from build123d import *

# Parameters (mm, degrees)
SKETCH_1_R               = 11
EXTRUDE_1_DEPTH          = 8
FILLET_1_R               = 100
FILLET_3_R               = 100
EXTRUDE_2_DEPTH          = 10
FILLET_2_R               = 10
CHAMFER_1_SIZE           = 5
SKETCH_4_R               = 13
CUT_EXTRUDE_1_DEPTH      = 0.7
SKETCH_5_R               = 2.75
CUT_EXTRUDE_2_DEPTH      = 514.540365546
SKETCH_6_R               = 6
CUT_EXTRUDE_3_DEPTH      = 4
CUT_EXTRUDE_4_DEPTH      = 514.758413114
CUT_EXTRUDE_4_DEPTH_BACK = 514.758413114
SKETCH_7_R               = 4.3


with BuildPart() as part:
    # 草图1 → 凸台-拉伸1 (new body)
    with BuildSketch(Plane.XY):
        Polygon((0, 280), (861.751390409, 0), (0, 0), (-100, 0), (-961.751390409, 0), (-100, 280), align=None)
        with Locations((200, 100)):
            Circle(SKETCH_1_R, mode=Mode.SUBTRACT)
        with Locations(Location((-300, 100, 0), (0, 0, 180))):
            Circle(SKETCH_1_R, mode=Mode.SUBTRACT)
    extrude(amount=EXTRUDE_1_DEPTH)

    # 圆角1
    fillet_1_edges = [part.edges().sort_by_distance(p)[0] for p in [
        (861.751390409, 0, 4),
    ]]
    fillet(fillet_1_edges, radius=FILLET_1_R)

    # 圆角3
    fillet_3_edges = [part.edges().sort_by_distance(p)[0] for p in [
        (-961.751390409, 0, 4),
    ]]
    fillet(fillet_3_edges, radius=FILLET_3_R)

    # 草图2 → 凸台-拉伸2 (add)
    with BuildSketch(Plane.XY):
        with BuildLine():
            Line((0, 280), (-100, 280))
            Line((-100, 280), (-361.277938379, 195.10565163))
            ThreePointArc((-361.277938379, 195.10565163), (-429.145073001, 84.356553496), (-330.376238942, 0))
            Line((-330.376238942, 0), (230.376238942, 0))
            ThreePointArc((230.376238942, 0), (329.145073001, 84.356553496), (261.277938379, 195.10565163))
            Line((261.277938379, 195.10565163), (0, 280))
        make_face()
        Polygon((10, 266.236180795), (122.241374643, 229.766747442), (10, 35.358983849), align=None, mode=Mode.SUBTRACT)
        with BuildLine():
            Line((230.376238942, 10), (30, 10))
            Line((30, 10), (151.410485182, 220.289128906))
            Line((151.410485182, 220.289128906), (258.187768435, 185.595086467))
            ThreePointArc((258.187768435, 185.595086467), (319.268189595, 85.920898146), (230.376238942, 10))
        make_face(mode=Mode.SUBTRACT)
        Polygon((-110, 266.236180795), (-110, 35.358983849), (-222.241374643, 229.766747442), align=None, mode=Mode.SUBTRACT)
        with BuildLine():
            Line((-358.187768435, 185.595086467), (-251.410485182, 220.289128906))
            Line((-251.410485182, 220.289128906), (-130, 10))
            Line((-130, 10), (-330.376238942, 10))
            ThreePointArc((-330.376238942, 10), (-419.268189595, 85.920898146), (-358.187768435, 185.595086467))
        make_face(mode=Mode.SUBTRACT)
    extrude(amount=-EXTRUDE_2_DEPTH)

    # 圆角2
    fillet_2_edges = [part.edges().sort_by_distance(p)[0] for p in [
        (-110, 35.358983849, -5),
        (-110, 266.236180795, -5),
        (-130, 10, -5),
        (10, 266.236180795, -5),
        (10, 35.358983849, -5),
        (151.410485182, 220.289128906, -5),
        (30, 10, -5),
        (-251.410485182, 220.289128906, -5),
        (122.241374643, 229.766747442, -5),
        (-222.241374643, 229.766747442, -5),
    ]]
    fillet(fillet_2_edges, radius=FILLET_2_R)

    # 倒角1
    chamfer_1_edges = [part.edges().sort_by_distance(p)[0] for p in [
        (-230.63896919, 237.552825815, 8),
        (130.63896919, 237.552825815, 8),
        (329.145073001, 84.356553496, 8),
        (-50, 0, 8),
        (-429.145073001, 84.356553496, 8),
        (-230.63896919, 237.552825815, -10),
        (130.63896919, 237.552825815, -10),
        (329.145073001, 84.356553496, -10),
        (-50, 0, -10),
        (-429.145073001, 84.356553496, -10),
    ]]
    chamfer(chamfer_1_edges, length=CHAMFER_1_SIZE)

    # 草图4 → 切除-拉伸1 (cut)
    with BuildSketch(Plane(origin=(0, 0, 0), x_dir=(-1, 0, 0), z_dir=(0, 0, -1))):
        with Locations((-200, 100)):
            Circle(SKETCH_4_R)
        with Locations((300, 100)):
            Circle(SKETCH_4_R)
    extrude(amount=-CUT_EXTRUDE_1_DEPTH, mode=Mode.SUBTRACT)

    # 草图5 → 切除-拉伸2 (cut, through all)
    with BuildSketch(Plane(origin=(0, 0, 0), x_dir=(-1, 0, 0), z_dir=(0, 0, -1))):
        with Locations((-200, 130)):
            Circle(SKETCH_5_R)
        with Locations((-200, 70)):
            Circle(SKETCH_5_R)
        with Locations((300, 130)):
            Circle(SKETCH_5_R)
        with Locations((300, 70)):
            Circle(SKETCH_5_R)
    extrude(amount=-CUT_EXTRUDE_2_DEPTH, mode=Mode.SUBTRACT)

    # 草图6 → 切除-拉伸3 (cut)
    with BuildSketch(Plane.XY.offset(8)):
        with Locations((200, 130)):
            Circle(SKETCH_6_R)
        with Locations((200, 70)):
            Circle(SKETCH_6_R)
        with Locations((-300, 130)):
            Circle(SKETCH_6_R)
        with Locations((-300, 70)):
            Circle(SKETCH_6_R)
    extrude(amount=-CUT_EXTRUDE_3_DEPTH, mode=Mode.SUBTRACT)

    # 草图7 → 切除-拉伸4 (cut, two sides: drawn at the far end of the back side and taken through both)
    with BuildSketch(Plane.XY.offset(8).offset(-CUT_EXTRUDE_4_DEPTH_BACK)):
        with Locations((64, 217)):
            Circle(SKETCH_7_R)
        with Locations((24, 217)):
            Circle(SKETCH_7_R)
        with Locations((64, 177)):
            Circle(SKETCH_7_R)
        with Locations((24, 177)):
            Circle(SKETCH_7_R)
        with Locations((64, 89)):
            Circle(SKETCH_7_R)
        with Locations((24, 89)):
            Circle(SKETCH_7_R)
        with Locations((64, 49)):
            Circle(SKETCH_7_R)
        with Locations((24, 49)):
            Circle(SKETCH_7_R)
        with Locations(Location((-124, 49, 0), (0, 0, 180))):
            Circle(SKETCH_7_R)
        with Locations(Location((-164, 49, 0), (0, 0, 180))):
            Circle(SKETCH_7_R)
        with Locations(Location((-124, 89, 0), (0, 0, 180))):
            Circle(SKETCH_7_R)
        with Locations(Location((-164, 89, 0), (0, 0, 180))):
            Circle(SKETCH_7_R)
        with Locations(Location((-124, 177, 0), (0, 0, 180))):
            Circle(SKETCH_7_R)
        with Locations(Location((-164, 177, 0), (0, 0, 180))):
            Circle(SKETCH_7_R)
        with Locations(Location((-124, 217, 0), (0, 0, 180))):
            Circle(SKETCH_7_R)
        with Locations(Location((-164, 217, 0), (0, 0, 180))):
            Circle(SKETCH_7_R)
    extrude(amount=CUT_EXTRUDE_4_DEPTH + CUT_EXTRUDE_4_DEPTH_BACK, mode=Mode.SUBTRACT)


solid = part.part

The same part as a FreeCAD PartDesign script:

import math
import FreeCAD as App
import Part
import Sketcher
from FreeCAD import Vector
Q = App.Units.Quantity


def edges_at(feature, points):
    """Names of the edges that pass closest to the given points."""
    edges = feature.Shape.Edges
    near = lambda p: min(range(len(edges)), key=lambda i: edges[i].distToShape(Part.Vertex(*p))[0])
    return sorted({f"Edge{near(p) + 1}" for p in points})


def add_polygon(sketch, points):
    """Adds a closed chain of lines whose ends are joined by coincident constraints."""
    first, n = sketch.GeometryCount, len(points)
    for a, b in zip(points, points[1:] + points[:1]):
        sketch.addGeometry(Part.LineSegment(App.Vector(*a, 0), App.Vector(*b, 0)), False)
    for i in range(n):
        sketch.addConstraint(Sketcher.Constraint("Coincident", first + i, 2, first + (i + 1) % n, 1))

doc = App.newDocument("Part")
body = doc.addObject("PartDesign::Body", "Body")

sketch1 = doc.addObject("Sketcher::SketchObject", "Sketch")
body.addObject(sketch1)
sketch1.AttachmentSupport = (doc.XY_Plane, [""])
sketch1.MapMode = "FlatFace"
add_polygon(sketch1, [(862, 0), (0, 280), (-100, 280), (-962, 0)])
sketch1.addGeometry(Part.Circle(Vector(200, 100, 0), Vector(0, 0, 1), 11), False)
sketch1.addGeometry(Part.Circle(Vector(-300, 100, 0), Vector(0, 0, 1), 11), False)
sketch1.addConstraint(Sketcher.Constraint("Horizontal", 1))
sketch1.addConstraint(Sketcher.Constraint("Horizontal", 3))
sketch1.addConstraint(Sketcher.Constraint("Equal", 4, 5))
sketch1.addConstraint(Sketcher.Constraint("PointOnObject", 0, 2, -2))
sketch1.addConstraint(Sketcher.Constraint("PointOnObject", 2, 2, -1))
sketch1.addConstraint(Sketcher.Constraint("Horizontal", 4, 3, 5, 3))
sketch1.addConstraint(Sketcher.Constraint("Equal", 0, 2))
sketch1.addConstraint(Sketcher.Constraint("Diameter", 4, Q("22 mm")))
sketch1.addConstraint(Sketcher.Constraint("DistanceX", 1, 2, 1, 1, Q("100 mm")))
sketch1.addConstraint(Sketcher.Constraint("Angle", 0, Q("162 deg")))
sketch1.addConstraint(Sketcher.Constraint("DistanceX", -1, 1, 4, 3, Q("200 mm")))
sketch1.addConstraint(Sketcher.Constraint("DistanceY", -1, 1, 4, 3, Q("100 mm")))
sketch1.addConstraint(Sketcher.Constraint("DistanceX", 5, 3, -1, 1, Q("300 mm")))
sketch1.addConstraint(Sketcher.Constraint("DistanceY", -1, 1, 0, 2, Q("280 mm")))
pad1 = doc.addObject("PartDesign::Pad", "Pad")
body.addObject(pad1)
pad1.Profile = sketch1
pad1.Length = 8
doc.recompute()

fillet = doc.addObject("PartDesign::Fillet", "Fillet")
body.addObject(fillet)
fillet.Base = (pad1, edges_at(pad1, [(861.751, 0, 4)]))
fillet.Radius = 100
doc.recompute()

fillet2 = doc.addObject("PartDesign::Fillet", "Fillet001")
body.addObject(fillet2)
fillet2.Base = (fillet, edges_at(fillet, [(-961.751, 0, 4)]))
fillet2.Radius = 100

sketch2 = doc.addObject("Sketcher::SketchObject", "Sketch001")
body.addObject(sketch2)
sketch2.AttachmentSupport = (doc.XY_Plane, [""])
sketch2.MapMode = "FlatFace"
sketch2.addGeometry(Part.LineSegment(Vector(0, 280, 0), Vector(-100, 280, 0)), False)
sketch2.addGeometry(Part.LineSegment(Vector(-100, 280, 0), Vector(-361, 195, 0)), False)
sketch2.addGeometry(Part.ArcOfCircle(Part.Circle(Vector(-330, 100, 0), Vector(0, 0, 1), 100), math.radians(108), math.radians(270)), False)
sketch2.addGeometry(Part.LineSegment(Vector(-330, 0, 0), Vector(230, 0, 0)), False)
sketch2.addGeometry(Part.ArcOfCircle(Part.Circle(Vector(230, 100, 0), Vector(0, 0, 1), 100), math.radians(-90), math.radians(72)), False)
sketch2.addGeometry(Part.LineSegment(Vector(261, 195, 0), Vector(0, 280, 0)), False)
sketch2.addGeometry(Part.ArcOfCircle(Part.Circle(Vector(-330, 100, 0), Vector(0, 0, 1), 90), math.radians(108), math.radians(270)), False)
sketch2.addGeometry(Part.LineSegment(Vector(-358, 186, 0), Vector(-251, 220, 0)), False)
sketch2.addGeometry(Part.LineSegment(Vector(-251, 220, 0), Vector(-130, 10, 0)), False)
sketch2.addGeometry(Part.LineSegment(Vector(-130, 10, 0), Vector(-330, 10, 0)), False)
sketch2.addGeometry(Part.ArcOfCircle(Part.Circle(Vector(230, 100, 0), Vector(0, 0, 1), 90), math.radians(-90), math.radians(72)), False)
sketch2.addGeometry(Part.LineSegment(Vector(230, 10, 0), Vector(30, 10, 0)), False)
sketch2.addGeometry(Part.LineSegment(Vector(30, 10, 0), Vector(151, 220, 0)), False)
sketch2.addGeometry(Part.LineSegment(Vector(151, 220, 0), Vector(258, 186, 0)), False)
add_polygon(sketch2, [(-222, 230), (-110, 266), (-110, 35)])
add_polygon(sketch2, [(10, 35), (10, 266), (122, 230)])
sketch2.addConstraint(Sketcher.Constraint("Coincident", 0, 2, 1, 1))
sketch2.addConstraint(Sketcher.Constraint("Tangent", 1, 2, 2, 1))
sketch2.addConstraint(Sketcher.Constraint("Tangent", 2, 2, 3, 1))
sketch2.addConstraint(Sketcher.Constraint("Tangent", 3, 2, 4, 1))
sketch2.addConstraint(Sketcher.Constraint("Tangent", 4, 2, 5, 1))
sketch2.addConstraint(Sketcher.Constraint("Coincident", 5, 2, 0, 1))
sketch2.addConstraint(Sketcher.Constraint("Tangent", 6, 1, 7, 1))
sketch2.addConstraint(Sketcher.Constraint("Coincident", 7, 2, 8, 1))
sketch2.addConstraint(Sketcher.Constraint("Coincident", 8, 2, 9, 1))
sketch2.addConstraint(Sketcher.Constraint("Tangent", 9, 2, 6, 2))
sketch2.addConstraint(Sketcher.Constraint("Tangent", 10, 1, 11, 1))
sketch2.addConstraint(Sketcher.Constraint("Coincident", 11, 2, 12, 1))
sketch2.addConstraint(Sketcher.Constraint("Coincident", 12, 2, 13, 1))
sketch2.addConstraint(Sketcher.Constraint("Tangent", 13, 2, 10, 2))
sketch2.addConstraint(Sketcher.Constraint("Horizontal", 0))
sketch2.addConstraint(Sketcher.Constraint("Horizontal", 3))
sketch2.addConstraint(Sketcher.Constraint("Horizontal", 9))
sketch2.addConstraint(Sketcher.Constraint("Horizontal", 11))
sketch2.addConstraint(Sketcher.Constraint("Vertical", 15))
sketch2.addConstraint(Sketcher.Constraint("Vertical", 17))
sketch2.addConstraint(Sketcher.Constraint("Coincident", 6, 3, 2, 3))
sketch2.addConstraint(Sketcher.Constraint("Coincident", 10, 3, 4, 3))
sketch2.addConstraint(Sketcher.Constraint("Equal", 2, 4))
sketch2.addConstraint(Sketcher.Constraint("Equal", 6, 10))
sketch2.addConstraint(Sketcher.Constraint("PointOnObject", 2, 2, -1))
sketch2.addConstraint(Sketcher.Constraint("PointOnObject", 5, 2, -2))
sketch2.addConstraint(Sketcher.Constraint("Parallel", 1, 7))
sketch2.addConstraint(Sketcher.Constraint("Parallel", 5, 13))
sketch2.addConstraint(Sketcher.Constraint("Parallel", 7, 14))
sketch2.addConstraint(Sketcher.Constraint("Parallel", 8, 16))
sketch2.addConstraint(Sketcher.Constraint("Parallel", 13, 18))
sketch2.addConstraint(Sketcher.Constraint("Parallel", 12, 19))
sketch2.addConstraint(Sketcher.Constraint("Horizontal", 7, 2, 12, 2))
sketch2.addConstraint(Sketcher.Constraint("Horizontal", 14, 2, 17, 2))
sketch2.addConstraint(Sketcher.Constraint("Horizontal", 16, 2, 18, 2))
sketch2.addConstraint(Sketcher.Constraint("Horizontal", 15, 2, 19, 2))
sketch2.addConstraint(Sketcher.Constraint("Equal", 9, 11))
sketch2.addConstraint(Sketcher.Constraint("Radius", 2, Q("100 mm")))
sketch2.addConstraint(Sketcher.Constraint("Radius", 6, Q("90 mm")))
sketch2.addConstraint(Sketcher.Constraint("DistanceX", 0, 2, 0, 1, Q("100 mm")))
sketch2.addConstraint(Sketcher.Constraint("Angle", 1, Q("-162 deg")))
sketch2.addConstraint(Sketcher.Constraint("Angle", 8, Q("-60 deg")))
sketch2.addConstraint(Sketcher.Constraint("DistanceY", -1, 1, 0, 2, Q("280 mm")))
sketch2.addConstraint(Sketcher.Constraint("DistanceX", 8, 2, -1, 1, Q("130 mm")))
sketch2.addConstraint(Sketcher.Constraint("DistanceX", 14, 2, -1, 1, Q("110 mm")))
sketch2.addConstraint(Sketcher.Constraint("DistanceX", -1, 1, 17, 2, Q("10 mm")))
sketch2.addConstraint(Sketcher.Constraint("Distance", 16, Q("224.482749 mm")))
sketch2.addConstraint(Sketcher.Constraint("DistanceY", -1, 1, 14, 2, Q("266.236181 mm")))
pad2 = doc.addObject("PartDesign::Pad", "Pad001")
body.addObject(pad2)
pad2.Profile = sketch2
pad2.Length = 10
pad2.Reversed = True
doc.recompute()

fillet3 = doc.addObject("PartDesign::Fillet", "Fillet002")
body.addObject(fillet3)
fillet3.Base = (pad2, edges_at(pad2, [
    (-110, 35.359, -5),
    (-110, 266.236, -5),
    (-130, 10, -5),
    (10, 266.236, -5),
    (10, 35.359, -5),
    (151.41, 220.289, -5),
    (30, 10, -5),
    (-251.41, 220.289, -5),
    (122.241, 229.767, -5),
    (-222.241, 229.767, -5),
]))
fillet3.Radius = 10
doc.recompute()

chamfer = doc.addObject("PartDesign::Chamfer", "Chamfer")
body.addObject(chamfer)
chamfer.Base = (fillet3, edges_at(fillet3, [
    (-230.639, 237.553, 8),
    (130.639, 237.553, 8),
    (329.145, 84.357, 8),
    (-50, 0, 8),
    (-429.145, 84.357, 8),
    (-230.639, 237.553, -10),
    (130.639, 237.553, -10),
    (329.145, 84.357, -10),
    (-50, 0, -10),
    (-429.145, 84.357, -10),
]))
chamfer.Size = 5

sketch3 = doc.addObject("Sketcher::SketchObject", "Sketch002")
body.addObject(sketch3)
sketch3.AttachmentSupport = (doc.XY_Plane, [""])
sketch3.MapMode = "FlatFace"
sketch3.addGeometry(Part.Circle(Vector(200, 100, 0), Vector(0, 0, 1), 13), False)
sketch3.addGeometry(Part.Circle(Vector(-300, 100, 0), Vector(0, 0, 1), 13), False)
sketch3.addConstraint(Sketcher.Constraint("Equal", 0, 1))
sketch3.addConstraint(Sketcher.Constraint("Horizontal", 0, 3, 1, 3))
sketch3.addConstraint(Sketcher.Constraint("Diameter", 0, Q("26 mm")))
sketch3.addConstraint(Sketcher.Constraint("DistanceX", -1, 1, 0, 3, Q("200 mm")))
sketch3.addConstraint(Sketcher.Constraint("DistanceY", -1, 1, 0, 3, Q("100 mm")))
sketch3.addConstraint(Sketcher.Constraint("DistanceX", 1, 3, -1, 1, Q("300 mm")))
pocket1 = doc.addObject("PartDesign::Pocket", "Pocket")
body.addObject(pocket1)
pocket1.Profile = sketch3
pocket1.Length = 0.7
pocket1.Reversed = True

sketch4 = doc.addObject("Sketcher::SketchObject", "Sketch003")
body.addObject(sketch4)
sketch4.AttachmentSupport = (doc.XY_Plane, [""])
sketch4.MapMode = "FlatFace"
sketch4.addGeometry(Part.Circle(Vector(200, 130, 0), Vector(0, 0, 1), 2.8), False)
sketch4.addGeometry(Part.Circle(Vector(200, 70, 0), Vector(0, 0, 1), 2.8), False)
sketch4.addGeometry(Part.Circle(Vector(-300, 130, 0), Vector(0, 0, 1), 2.8), False)
sketch4.addGeometry(Part.Circle(Vector(-300, 70, 0), Vector(0, 0, 1), 2.8), False)
sketch4.addConstraint(Sketcher.Constraint("Equal", 0, 1))
sketch4.addConstraint(Sketcher.Constraint("Equal", 1, 2))
sketch4.addConstraint(Sketcher.Constraint("Equal", 2, 3))
sketch4.addConstraint(Sketcher.Constraint("Horizontal", 0, 3, 2, 3))
sketch4.addConstraint(Sketcher.Constraint("Horizontal", 1, 3, 3, 3))
sketch4.addConstraint(Sketcher.Constraint("Vertical", 0, 3, 1, 3))
sketch4.addConstraint(Sketcher.Constraint("Vertical", 2, 3, 3, 3))
sketch4.addConstraint(Sketcher.Constraint("Diameter", 0, Q("5.5 mm")))
sketch4.addConstraint(Sketcher.Constraint("DistanceX", -1, 1, 0, 3, Q("200 mm")))
sketch4.addConstraint(Sketcher.Constraint("DistanceY", -1, 1, 0, 3, Q("130 mm")))
sketch4.addConstraint(Sketcher.Constraint("DistanceY", -1, 1, 1, 3, Q("70 mm")))
sketch4.addConstraint(Sketcher.Constraint("DistanceX", 2, 3, -1, 1, Q("300 mm")))
pocket2 = doc.addObject("PartDesign::Pocket", "Pocket001")
body.addObject(pocket2)
pocket2.Profile = sketch4
pocket2.Type = "ThroughAll"
pocket2.Reversed = True

sketch5 = doc.addObject("Sketcher::SketchObject", "Sketch004")
body.addObject(sketch5)
sketch5.AttachmentSupport = (doc.XY_Plane, [""])
sketch5.MapMode = "FlatFace"
sketch5.AttachmentOffset = App.Placement(Vector(0, 0, 8), App.Rotation())
sketch5.addGeometry(Part.Circle(Vector(200, 130, 0), Vector(0, 0, 1), 6), False)
sketch5.addGeometry(Part.Circle(Vector(200, 70, 0), Vector(0, 0, 1), 6), False)
sketch5.addGeometry(Part.Circle(Vector(-300, 130, 0), Vector(0, 0, 1), 6), False)
sketch5.addGeometry(Part.Circle(Vector(-300, 70, 0), Vector(0, 0, 1), 6), False)
sketch5.addConstraint(Sketcher.Constraint("Equal", 0, 1))
sketch5.addConstraint(Sketcher.Constraint("Equal", 1, 2))
sketch5.addConstraint(Sketcher.Constraint("Equal", 2, 3))
sketch5.addConstraint(Sketcher.Constraint("Horizontal", 0, 3, 2, 3))
sketch5.addConstraint(Sketcher.Constraint("Horizontal", 1, 3, 3, 3))
sketch5.addConstraint(Sketcher.Constraint("Vertical", 0, 3, 1, 3))
sketch5.addConstraint(Sketcher.Constraint("Vertical", 2, 3, 3, 3))
sketch5.addConstraint(Sketcher.Constraint("Diameter", 0, Q("12 mm")))
sketch5.addConstraint(Sketcher.Constraint("DistanceX", -1, 1, 0, 3, Q("200 mm")))
sketch5.addConstraint(Sketcher.Constraint("DistanceY", -1, 1, 0, 3, Q("130 mm")))
sketch5.addConstraint(Sketcher.Constraint("DistanceY", -1, 1, 1, 3, Q("70 mm")))
sketch5.addConstraint(Sketcher.Constraint("DistanceX", 2, 3, -1, 1, Q("300 mm")))
pocket3 = doc.addObject("PartDesign::Pocket", "Pocket002")
body.addObject(pocket3)
pocket3.Profile = sketch5
pocket3.Length = 4

sketch6 = doc.addObject("Sketcher::SketchObject", "Sketch005")
body.addObject(sketch6)
sketch6.AttachmentSupport = (doc.XY_Plane, [""])
sketch6.MapMode = "FlatFace"
sketch6.AttachmentOffset = App.Placement(Vector(0, 0, 8), App.Rotation())
sketch6.addGeometry(Part.Circle(Vector(64, 217, 0), Vector(0, 0, 1), 4.3), False)
sketch6.addGeometry(Part.Circle(Vector(24, 217, 0), Vector(0, 0, 1), 4.3), False)
sketch6.addGeometry(Part.Circle(Vector(64, 177, 0), Vector(0, 0, 1), 4.3), False)
sketch6.addGeometry(Part.Circle(Vector(24, 177, 0), Vector(0, 0, 1), 4.3), False)
sketch6.addGeometry(Part.Circle(Vector(64, 89, 0), Vector(0, 0, 1), 4.3), False)
sketch6.addGeometry(Part.Circle(Vector(24, 89, 0), Vector(0, 0, 1), 4.3), False)
sketch6.addGeometry(Part.Circle(Vector(64, 49, 0), Vector(0, 0, 1), 4.3), False)
sketch6.addGeometry(Part.Circle(Vector(24, 49, 0), Vector(0, 0, 1), 4.3), False)
sketch6.addGeometry(Part.Circle(Vector(-124, 49, 0), Vector(0, 0, 1), 4.3), False)
sketch6.addGeometry(Part.Circle(Vector(-164, 49, 0), Vector(0, 0, 1), 4.3), False)
sketch6.addGeometry(Part.Circle(Vector(-124, 89, 0), Vector(0, 0, 1), 4.3), False)
sketch6.addGeometry(Part.Circle(Vector(-164, 89, 0), Vector(0, 0, 1), 4.3), False)
sketch6.addGeometry(Part.Circle(Vector(-124, 177, 0), Vector(0, 0, 1), 4.3), False)
sketch6.addGeometry(Part.Circle(Vector(-164, 177, 0), Vector(0, 0, 1), 4.3), False)
sketch6.addGeometry(Part.Circle(Vector(-124, 217, 0), Vector(0, 0, 1), 4.3), False)
sketch6.addGeometry(Part.Circle(Vector(-164, 217, 0), Vector(0, 0, 1), 4.3), False)
sketch6.addConstraint(Sketcher.Constraint("Equal", 0, 1))
sketch6.addConstraint(Sketcher.Constraint("Equal", 1, 2))
sketch6.addConstraint(Sketcher.Constraint("Equal", 2, 3))
sketch6.addConstraint(Sketcher.Constraint("Equal", 3, 4))
sketch6.addConstraint(Sketcher.Constraint("Equal", 4, 5))
sketch6.addConstraint(Sketcher.Constraint("Equal", 5, 6))
sketch6.addConstraint(Sketcher.Constraint("Equal", 6, 7))
sketch6.addConstraint(Sketcher.Constraint("Equal", 7, 8))
sketch6.addConstraint(Sketcher.Constraint("Equal", 8, 9))
sketch6.addConstraint(Sketcher.Constraint("Equal", 9, 10))
sketch6.addConstraint(Sketcher.Constraint("Equal", 10, 11))
sketch6.addConstraint(Sketcher.Constraint("Equal", 11, 12))
sketch6.addConstraint(Sketcher.Constraint("Equal", 12, 13))
sketch6.addConstraint(Sketcher.Constraint("Equal", 13, 14))
sketch6.addConstraint(Sketcher.Constraint("Equal", 14, 15))
sketch6.addConstraint(Sketcher.Constraint("Horizontal", 0, 3, 1, 3))
sketch6.addConstraint(Sketcher.Constraint("Horizontal", 2, 3, 3, 3))
sketch6.addConstraint(Sketcher.Constraint("Horizontal", 4, 3, 5, 3))
sketch6.addConstraint(Sketcher.Constraint("Horizontal", 6, 3, 7, 3))
sketch6.addConstraint(Sketcher.Constraint("Horizontal", 7, 3, 8, 3))
sketch6.addConstraint(Sketcher.Constraint("Horizontal", 8, 3, 9, 3))
sketch6.addConstraint(Sketcher.Constraint("Horizontal", 5, 3, 10, 3))
sketch6.addConstraint(Sketcher.Constraint("Horizontal", 10, 3, 11, 3))
sketch6.addConstraint(Sketcher.Constraint("Horizontal", 3, 3, 12, 3))
sketch6.addConstraint(Sketcher.Constraint("Horizontal", 12, 3, 13, 3))
sketch6.addConstraint(Sketcher.Constraint("Horizontal", 1, 3, 14, 3))
sketch6.addConstraint(Sketcher.Constraint("Horizontal", 14, 3, 15, 3))
sketch6.addConstraint(Sketcher.Constraint("Vertical", 0, 3, 2, 3))
sketch6.addConstraint(Sketcher.Constraint("Vertical", 1, 3, 3, 3))
sketch6.addConstraint(Sketcher.Constraint("Vertical", 2, 3, 4, 3))
sketch6.addConstraint(Sketcher.Constraint("Vertical", 3, 3, 5, 3))
sketch6.addConstraint(Sketcher.Constraint("Vertical", 4, 3, 6, 3))
sketch6.addConstraint(Sketcher.Constraint("Vertical", 5, 3, 7, 3))
sketch6.addConstraint(Sketcher.Constraint("Vertical", 8, 3, 10, 3))
sketch6.addConstraint(Sketcher.Constraint("Vertical", 9, 3, 11, 3))
sketch6.addConstraint(Sketcher.Constraint("Vertical", 10, 3, 12, 3))
sketch6.addConstraint(Sketcher.Constraint("Vertical", 11, 3, 13, 3))
sketch6.addConstraint(Sketcher.Constraint("Vertical", 12, 3, 14, 3))
sketch6.addConstraint(Sketcher.Constraint("Vertical", 13, 3, 15, 3))
sketch6.addConstraint(Sketcher.Constraint("Diameter", 0, Q("8.6 mm")))
sketch6.addConstraint(Sketcher.Constraint("DistanceX", -1, 1, 0, 3, Q("64 mm")))
sketch6.addConstraint(Sketcher.Constraint("DistanceY", -1, 1, 0, 3, Q("217 mm")))
sketch6.addConstraint(Sketcher.Constraint("DistanceX", -1, 1, 1, 3, Q("24 mm")))
sketch6.addConstraint(Sketcher.Constraint("DistanceY", -1, 1, 2, 3, Q("177 mm")))
sketch6.addConstraint(Sketcher.Constraint("DistanceY", -1, 1, 4, 3, Q("89 mm")))
sketch6.addConstraint(Sketcher.Constraint("DistanceY", -1, 1, 6, 3, Q("49 mm")))
sketch6.addConstraint(Sketcher.Constraint("DistanceX", 8, 3, -1, 1, Q("124 mm")))
sketch6.addConstraint(Sketcher.Constraint("DistanceX", 9, 3, -1, 1, Q("164 mm")))
pocket4 = doc.addObject("PartDesign::Pocket", "Pocket003")
body.addObject(pocket4)
pocket4.Profile = sketch6
pocket4.Type = "ThroughAll"
pocket4.Midplane = True

doc.recompute()
